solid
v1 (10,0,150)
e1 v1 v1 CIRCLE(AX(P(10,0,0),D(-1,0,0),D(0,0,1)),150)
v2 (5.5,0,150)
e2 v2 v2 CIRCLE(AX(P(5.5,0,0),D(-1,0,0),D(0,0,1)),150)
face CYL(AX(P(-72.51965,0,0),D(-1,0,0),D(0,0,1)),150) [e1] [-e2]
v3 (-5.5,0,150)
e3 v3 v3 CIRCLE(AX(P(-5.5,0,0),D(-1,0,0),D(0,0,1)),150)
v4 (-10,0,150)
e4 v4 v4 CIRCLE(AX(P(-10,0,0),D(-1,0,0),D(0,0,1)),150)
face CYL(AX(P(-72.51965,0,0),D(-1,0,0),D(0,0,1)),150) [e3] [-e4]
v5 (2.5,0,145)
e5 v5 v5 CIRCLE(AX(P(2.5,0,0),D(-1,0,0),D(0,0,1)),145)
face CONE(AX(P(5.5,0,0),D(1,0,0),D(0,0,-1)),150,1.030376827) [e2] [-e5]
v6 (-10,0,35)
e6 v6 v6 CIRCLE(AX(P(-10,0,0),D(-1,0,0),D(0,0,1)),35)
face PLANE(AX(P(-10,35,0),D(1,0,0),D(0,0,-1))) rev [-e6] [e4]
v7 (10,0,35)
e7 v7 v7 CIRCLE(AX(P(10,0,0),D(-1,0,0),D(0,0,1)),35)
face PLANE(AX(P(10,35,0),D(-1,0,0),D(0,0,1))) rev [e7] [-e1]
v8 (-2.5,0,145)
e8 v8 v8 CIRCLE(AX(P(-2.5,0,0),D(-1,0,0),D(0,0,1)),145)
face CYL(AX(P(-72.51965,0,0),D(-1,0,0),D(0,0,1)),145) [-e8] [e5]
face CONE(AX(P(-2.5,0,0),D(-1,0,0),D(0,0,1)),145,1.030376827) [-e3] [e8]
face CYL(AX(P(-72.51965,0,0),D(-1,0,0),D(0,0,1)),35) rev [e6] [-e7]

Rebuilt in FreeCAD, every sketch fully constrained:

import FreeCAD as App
import Part
import Sketcher
from FreeCAD import Vector
Q = App.Units.Quantity

doc = App.newDocument("Part")
body = doc.addObject("PartDesign::Body", "Body")

# Sketch on XY plane
sketch1 = body.newObject("Sketcher::SketchObject", "Sketch")
sketch1.AttachmentSupport = (doc.getObject("XY_Plane"), [""])
sketch1.MapMode = "FlatFace"
sketch1.addGeometry(Part.LineSegment(Vector(-10, 150, 0), Vector(-10, 35, 0)), False)
sketch1.addGeometry(Part.LineSegment(Vector(-10, 35, 0), Vector(10, 35, 0)), False)
sketch1.addGeometry(Part.LineSegment(Vector(10, 35, 0), Vector(10, 150, 0)), False)
sketch1.addGeometry(Part.LineSegment(Vector(10, 150, 0), Vector(5.5, 150, 0)), False)
sketch1.addGeometry(Part.LineSegment(Vector(5.5, 150, 0), Vector(2.5, 145, 0)), False)
sketch1.addGeometry(Part.LineSegment(Vector(2.5, 145, 0), Vector(-2.5, 145, 0)), False)
sketch1.addGeometry(Part.LineSegment(Vector(-2.5, 145, 0), Vector(-5.5, 150, 0)), False)
sketch1.addGeometry(Part.LineSegment(Vector(-5.5, 150, 0), Vector(-10, 150, 0)), False)
sketch1.addConstraint(Sketcher.Constraint("Coincident", 0, 2, 1, 1))
sketch1.addConstraint(Sketcher.Constraint("Coincident", 1, 2, 2, 1))
sketch1.addConstraint(Sketcher.Constraint("Coincident", 2, 2, 3, 1))
sketch1.addConstraint(Sketcher.Constraint("Coincident", 3, 2, 4, 1))
sketch1.addConstraint(Sketcher.Constraint("Coincident", 4, 2, 5, 1))
sketch1.addConstraint(Sketcher.Constraint("Coincident", 5, 2, 6, 1))
sketch1.addConstraint(Sketcher.Constraint("Coincident", 6, 2, 7, 1))
sketch1.addConstraint(Sketcher.Constraint("Coincident", 7, 2, 0, 1))
sketch1.addConstraint(Sketcher.Constraint("Vertical", 0))
sketch1.addConstraint(Sketcher.Constraint("Horizontal", 1))
sketch1.addConstraint(Sketcher.Constraint("Vertical", 2))
sketch1.addConstraint(Sketcher.Constraint("Horizontal", 3))
sketch1.addConstraint(Sketcher.Constraint("Horizontal", 5))
sketch1.addConstraint(Sketcher.Constraint("Horizontal", 7))
sketch1.addConstraint(Sketcher.Constraint("Symmetric", 3, 2, 6, 2, -2))
sketch1.addConstraint(Sketcher.Constraint("Equal", 3, 7))
sketch1.addConstraint(Sketcher.Constraint("Equal", 4, 6))
sketch1.addConstraint(Sketcher.Constraint("DistanceX", 1, 1, 1, 2, Q("20 mm")))
sketch1.addConstraint(Sketcher.Constraint("DistanceX", 5, 2, 5, 1, Q("5 mm")))
sketch1.addConstraint(Sketcher.Constraint("DistanceY", 0, 2, 0, 1, Q("115 mm")))
sketch1.addConstraint(Sketcher.Constraint("DistanceX", 3, 2, 3, 1, Q("4.5 mm")))
sketch1.addConstraint(Sketcher.Constraint("DistanceY", -1, 1, 0, 2, Q("35 mm")))
sketch1.addConstraint(Sketcher.Constraint("DistanceY", -1, 1, 4, 2, Q("145 mm")))
revolution = body.newObject("PartDesign::Revolution", "Revolution")
revolution.Profile = sketch1
revolution.ReferenceAxis = (sketch1, ["H_Axis"])
revolution.Angle = 360

doc.recompute()
